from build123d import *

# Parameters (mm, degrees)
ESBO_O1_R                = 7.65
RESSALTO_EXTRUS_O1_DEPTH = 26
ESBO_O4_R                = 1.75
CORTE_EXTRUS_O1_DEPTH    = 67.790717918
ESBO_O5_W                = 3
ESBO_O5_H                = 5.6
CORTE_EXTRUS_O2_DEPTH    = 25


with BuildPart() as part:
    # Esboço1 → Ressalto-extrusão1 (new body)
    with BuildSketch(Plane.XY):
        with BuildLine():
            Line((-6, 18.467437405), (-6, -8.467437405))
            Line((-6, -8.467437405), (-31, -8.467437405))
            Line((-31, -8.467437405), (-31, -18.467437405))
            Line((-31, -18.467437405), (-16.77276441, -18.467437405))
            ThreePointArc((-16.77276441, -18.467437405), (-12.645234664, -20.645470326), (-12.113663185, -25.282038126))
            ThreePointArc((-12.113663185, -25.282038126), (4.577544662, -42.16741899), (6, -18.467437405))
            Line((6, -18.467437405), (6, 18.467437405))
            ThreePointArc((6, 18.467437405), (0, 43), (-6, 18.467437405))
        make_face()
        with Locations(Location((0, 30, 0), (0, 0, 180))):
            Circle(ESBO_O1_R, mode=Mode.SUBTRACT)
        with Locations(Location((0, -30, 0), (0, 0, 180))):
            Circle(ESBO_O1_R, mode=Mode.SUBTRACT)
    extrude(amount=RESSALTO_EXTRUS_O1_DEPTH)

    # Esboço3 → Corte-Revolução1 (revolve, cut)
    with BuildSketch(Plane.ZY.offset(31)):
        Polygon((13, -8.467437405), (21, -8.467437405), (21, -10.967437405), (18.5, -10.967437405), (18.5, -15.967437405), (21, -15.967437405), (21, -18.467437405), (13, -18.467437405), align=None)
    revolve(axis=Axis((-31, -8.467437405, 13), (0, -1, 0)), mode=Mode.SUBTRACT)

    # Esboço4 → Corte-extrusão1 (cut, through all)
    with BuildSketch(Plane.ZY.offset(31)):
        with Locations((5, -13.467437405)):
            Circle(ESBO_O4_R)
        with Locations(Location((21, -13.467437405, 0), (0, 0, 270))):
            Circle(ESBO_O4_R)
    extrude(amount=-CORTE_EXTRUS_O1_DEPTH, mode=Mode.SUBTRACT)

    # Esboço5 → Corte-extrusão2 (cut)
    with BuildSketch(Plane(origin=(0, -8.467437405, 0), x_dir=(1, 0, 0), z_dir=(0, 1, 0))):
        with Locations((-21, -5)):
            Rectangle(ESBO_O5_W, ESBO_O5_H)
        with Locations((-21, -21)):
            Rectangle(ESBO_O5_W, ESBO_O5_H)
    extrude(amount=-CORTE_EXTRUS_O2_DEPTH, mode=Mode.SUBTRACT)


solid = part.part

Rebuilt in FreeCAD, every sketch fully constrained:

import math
import FreeCAD as App
import Part
import Sketcher
Q = App.Units.Quantity

doc = App.newDocument("Part")
body = doc.addObject("PartDesign::Body", "Body")

# Sketch on XY plane
sketch1 = body.newObject("Sketcher::SketchObject", "Sketch")
sketch1.AttachmentSupport = (doc.getObject("XY_Plane"), [""])
sketch1.MapMode = "FlatFace"
sketch1.addGeometry([
    Part.LineSegment(App.Vector(-6, 18, 0), App.Vector(-6, -8, 0)),  # 0
    Part.LineSegment(App.Vector(-6, -8, 0), App.Vector(-31, -8, 0)),  # 1
    Part.LineSegment(App.Vector(-31, -8, 0), App.Vector(-31, -18, 0)),  # 2
    Part.LineSegment(App.Vector(-31, -18, 0), App.Vector(-17, -18, 0)),  # 3
    Part.ArcOfCircle(Part.Circle(App.Vector(-17, -23, 0), App.Vector(0, 0, 1), 5), math.radians(-21), math.radians(90)),  # 4
    Part.ArcOfCircle(Part.Circle(App.Vector(0, -30, 0), App.Vector(0, 0, 1), 13), math.radians(159), math.radians(423)),  # 5
    Part.LineSegment(App.Vector(6, -18, 0), App.Vector(6, 18, 0)),  # 6
    Part.ArcOfCircle(Part.Circle(App.Vector(0, 30, 0), App.Vector(0, 0, 1), 13), math.radians(-63), math.radians(243)),  # 7
    Part.Circle(App.Vector(0, -30, 0), App.Vector(0, 0, 1), 8),  # 8
    Part.Circle(App.Vector(0, 30, 0), App.Vector(0, 0, 1), 8),  # 9
], False)
sketch1.addConstraint([
    Sketcher.Constraint("Coincident", 0, 2, 1, 1),
    Sketcher.Constraint("Coincident", 1, 2, 2, 1),
    Sketcher.Constraint("Coincident", 2, 2, 3, 1),
    Sketcher.Constraint("Tangent", 3, 2, 4, 2),
    Sketcher.Constraint("Tangent", 4, 1, 5, 1),
    Sketcher.Constraint("Coincident", 5, 2, 6, 1),
    Sketcher.Constraint("Coincident", 6, 2, 7, 1),
    Sketcher.Constraint("Coincident", 7, 2, 0, 1),
    Sketcher.Constraint("Vertical", 0),
    Sketcher.Constraint("Horizontal", 1),
    Sketcher.Constraint("Vertical", 2),
    Sketcher.Constraint("Horizontal", 3),
    Sketcher.Constraint("Vertical", 6),
    Sketcher.Constraint("Coincident", 8, 3, 5, 3),
    Sketcher.Constraint("Coincident", 9, 3, 7, 3),
    Sketcher.Constraint("Equal", 5, 7),
    Sketcher.Constraint("Equal", 8, 9),
    Sketcher.Constraint("Symmetric", 5, 3, 7, 3, -1, 1),
    Sketcher.Constraint("Symmetric", 6, 2, 7, 2, -2),
    Sketcher.Constraint("Horizontal", 3, 2, 5, 2),
    Sketcher.Constraint("Radius", 4, Q("5 mm")),
    Sketcher.Constraint("Radius", 5, Q("13 mm")),
    Sketcher.Constraint("Diameter", 8, Q("15.3 mm")),
    Sketcher.Constraint("DistanceX", 1, 2, 1, 1, Q("25 mm")),
    Sketcher.Constraint("DistanceY", 2, 2, 2, 1, Q("10 mm")),
    Sketcher.Constraint("DistanceY", 5, 3, -1, 1, Q("30 mm")),
    Sketcher.Constraint("DistanceX", 0, 2, -1, 1, Q("6 mm")),
])
pad1 = body.newObject("PartDesign::Pad", "Pad")
pad1.Profile = sketch1
pad1.Length = 26

# Sketch on YZ plane
sketch2 = body.newObject("Sketcher::SketchObject", "Sketch001")
sketch2.AttachmentSupport = (doc.getObject("YZ_Plane"), [""])
sketch2.MapMode = "FlatFace"
sketch2.AttachmentOffset = App.Placement(App.Vector(0, 0, -31), App.Rotation())
sketch2.addGeometry([
    Part.LineSegment(App.Vector(-8.5, 21, 0), App.Vector(-8.5, 13, 0)),  # 0
    Part.LineSegment(App.Vector(-8.5, 13, 0), App.Vector(-18.5, 13, 0)),  # 1
    Part.LineSegment(App.Vector(-18.5, 13, 0), App.Vector(-18.5, 21, 0)),  # 2
    Part.LineSegment(App.Vector(-18.5, 21, 0), App.Vector(-16, 21, 0)),  # 3
    Part.LineSegment(App.Vector(-16, 21, 0), App.Vector(-16, 18.5, 0)),  # 4
    Part.LineSegment(App.Vector(-16, 18.5, 0), App.Vector(-11, 18.5, 0)),  # 5
    Part.LineSegment(App.Vector(-11, 18.5, 0), App.Vector(-11, 21, 0)),  # 6
    Part.LineSegment(App.Vector(-11, 21, 0), App.Vector(-8.5, 21, 0)),  # 7
], False)
sketch2.addGeometry(Part.LineSegment(App.Vector(-8.5, 13, 0), App.Vector(-18.5, 13, 0)), True)  # axis
sketch2.addConstraint([
    Sketcher.Constraint("Coincident", 0, 2, 1, 1),
    Sketcher.Constraint("Coincident", 1, 2, 2, 1),
    Sketcher.Constraint("Coincident", 2, 2, 3, 1),
    Sketcher.Constraint("Coincident", 3, 2, 4, 1),
    Sketcher.Constraint("Coincident", 4, 2, 5, 1),
    Sketcher.Constraint("Coincident", 5, 2, 6, 1),
    Sketcher.Constraint("Coincident", 6, 2, 7, 1),
    Sketcher.Constraint("Coincident", 7, 2, 0, 1),
    Sketcher.Constraint("Vertical", 0),
    Sketcher.Constraint("Horizontal", 1),
    Sketcher.Constraint("Vertical", 2),
    Sketcher.Constraint("Horizontal", 3),
    Sketcher.Constraint("Vertical", 4),
    Sketcher.Constraint("Horizontal", 5),
    Sketcher.Constraint("Vertical", 6),
    Sketcher.Constraint("Horizontal", 7),
    Sketcher.Constraint("Horizontal", 8),
    Sketcher.Constraint("Coincident", 8, 1, 0, 2),
    Sketcher.Constraint("Horizontal", 3, 2, 6, 2),
    Sketcher.Constraint("Vertical", 2, 2, 8, 2),
    Sketcher.Constraint("Equal", 3, 7),
    Sketcher.Constraint("Equal", 7, 4),
    Sketcher.Constraint("DistanceX", 1, 2, 1, 1, Q("10 mm")),
    Sketcher.Constraint("DistanceX", 5, 1, 5, 2, Q("5 mm")),
    Sketcher.Constraint("DistanceY", 0, 2, 0, 1, Q("8 mm")),
    Sketcher.Constraint("DistanceY", -1, 1, 0, 2, Q("13 mm")),
    Sketcher.Constraint("DistanceX", 0, 2, -1, 1, Q("8.467437 mm")),
])
groove = body.newObject("PartDesign::Groove", "Groove")
groove.Profile = sketch2
groove.ReferenceAxis = (sketch2, ["Axis0"])
groove.Angle = 360

# Sketch on YZ plane
sketch3 = body.newObject("Sketcher::SketchObject", "Sketch002")
sketch3.AttachmentSupport = (doc.getObject("YZ_Plane"), [""])
sketch3.MapMode = "FlatFace"
sketch3.AttachmentOffset = App.Placement(App.Vector(0, 0, -31), App.Rotation())
sketch3.addGeometry([
    Part.Circle(App.Vector(-13.5, 5, 0), App.Vector(0, 0, 1), 1.8),
    Part.Circle(App.Vector(-13.5, 21, 0), App.Vector(0, 0, 1), 1.8),
], False)
sketch3.addConstraint([
    Sketcher.Constraint("Equal", 0, 1),
    Sketcher.Constraint("Vertical", 0, 3, 1, 3),
    Sketcher.Constraint("Diameter", 0, Q("3.5 mm")),
    Sketcher.Constraint("DistanceY", -1, 1, 0, 3, Q("5 mm")),
    Sketcher.Constraint("DistanceY", -1, 1, 1, 3, Q("21 mm")),
    Sketcher.Constraint("DistanceX", 0, 3, -1, 1, Q("13.467437 mm")),
])
pocket1 = body.newObject("PartDesign::Pocket", "Pocket")
pocket1.Profile = sketch3
pocket1.Type = "ThroughAll"
pocket1.Reversed = True

# Sketch on XZ plane
sketch4 = body.newObject("Sketcher::SketchObject", "Sketch003")
sketch4.AttachmentSupport = (doc.getObject("XZ_Plane"), [""])
sketch4.MapMode = "FlatFace"
sketch4.AttachmentOffset = App.Placement(App.Vector(0, 0, 8.467437), App.Rotation())
sketch4.addGeometry([
    Part.LineSegment(App.Vector(-22.5, 2.2, 0), App.Vector(-22.5, 7.8, 0)),  # 0
    Part.LineSegment(App.Vector(-22.5, 7.8, 0), App.Vector(-19.5, 7.8, 0)),  # 1
    Part.LineSegment(App.Vector(-19.5, 7.8, 0), App.Vector(-19.5, 2.2, 0)),  # 2
    Part.LineSegment(App.Vector(-19.5, 2.2, 0), App.Vector(-22.5, 2.2, 0)),  # 3
    Part.LineSegment(App.Vector(-22.5, 18.2, 0), App.Vector(-22.5, 23.8, 0)),  # 4
    Part.LineSegment(App.Vector(-22.5, 23.8, 0), App.Vector(-19.5, 23.8, 0)),  # 5
    Part.LineSegment(App.Vector(-19.5, 23.8, 0), App.Vector(-19.5, 18.2, 0)),  # 6
    Part.LineSegment(App.Vector(-19.5, 18.2, 0), App.Vector(-22.5, 18.2, 0)),  # 7
], False)
sketch4.addConstraint([
    Sketcher.Constraint("Coincident", 0, 2, 1, 1),
    Sketcher.Constraint("Coincident", 1, 2, 2, 1),
    Sketcher.Constraint("Coincident", 2, 2, 3, 1),
    Sketcher.Constraint("Coincident", 3, 2, 0, 1),
    Sketcher.Constraint("Coincident", 4, 2, 5, 1),
    Sketcher.Constraint("Coincident", 5, 2, 6, 1),
    Sketcher.Constraint("Coincident", 6, 2, 7, 1),
    Sketcher.Constraint("Coincident", 7, 2, 4, 1),
    Sketcher.Constraint("Vertical", 0),
    Sketcher.Constraint("Horizontal", 1),
    Sketcher.Constraint("Vertical", 2),
    Sketcher.Constraint("Horizontal", 3),
    Sketcher.Constraint("Vertical", 4),
    Sketcher.Constraint("Horizontal", 5),
    Sketcher.Constraint("Vertical", 6),
    Sketcher.Constraint("Horizontal", 7),
    Sketcher.Constraint("Vertical", 3, 2, 4, 2),
    Sketcher.Constraint("Vertical", 2, 2, 5, 2),
    Sketcher.Constraint("Equal", 2, 4),
    Sketcher.Constraint("DistanceX", 1, 1, 1, 2, Q("3 mm")),
    Sketcher.Constraint("DistanceY", 0, 1, 0, 2, Q("5.6 mm")),
    Sketcher.Constraint("DistanceY", 0, 2, 4, 2, Q("16 mm")),
    Sketcher.Constraint("DistanceX", 0, 2, -1, 1, Q("22.5 mm")),
    Sketcher.Constraint("DistanceY", -1, 1, 0, 2, Q("7.8 mm")),
])
pocket2 = body.newObject("PartDesign::Pocket", "Pocket001")
pocket2.Profile = sketch4
pocket2.Length = 25
pocket2.Reversed = True

doc.recompute()
